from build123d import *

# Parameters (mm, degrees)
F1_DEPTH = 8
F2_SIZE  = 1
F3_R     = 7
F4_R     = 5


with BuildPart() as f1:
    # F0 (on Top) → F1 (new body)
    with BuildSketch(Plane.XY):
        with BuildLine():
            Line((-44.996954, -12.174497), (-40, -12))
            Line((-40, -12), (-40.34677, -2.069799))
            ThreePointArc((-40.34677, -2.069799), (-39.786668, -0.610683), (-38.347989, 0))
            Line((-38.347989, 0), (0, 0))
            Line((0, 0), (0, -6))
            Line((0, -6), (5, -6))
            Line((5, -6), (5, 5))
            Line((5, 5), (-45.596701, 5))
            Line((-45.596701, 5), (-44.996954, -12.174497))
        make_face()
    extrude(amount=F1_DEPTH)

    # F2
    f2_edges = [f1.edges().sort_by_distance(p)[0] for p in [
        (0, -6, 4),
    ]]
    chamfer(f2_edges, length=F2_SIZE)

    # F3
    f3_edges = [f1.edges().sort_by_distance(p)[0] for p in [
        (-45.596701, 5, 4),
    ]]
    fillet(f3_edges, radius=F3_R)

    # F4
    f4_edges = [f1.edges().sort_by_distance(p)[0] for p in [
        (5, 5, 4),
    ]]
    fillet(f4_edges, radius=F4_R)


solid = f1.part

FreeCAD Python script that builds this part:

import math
import FreeCAD as App
import Part
import Sketcher
from FreeCAD import Vector
Q = App.Units.Quantity


def edges_at(feature, points):
    """Names of the edges that pass closest to the given points."""
    edges = feature.Shape.Edges
    near = lambda p: min(range(len(edges)), key=lambda i: edges[i].distToShape(Part.Vertex(*p))[0])
    return sorted({f"Edge{near(p) + 1}" for p in points})

doc = App.newDocument("Part")
params = doc.addObject("Spreadsheet::Sheet", "Params")
for row, (alias, value) in enumerate([
    ("sketch1_radius", "2 mm"),
    ("sketch1_width", "5 mm"),
    ("sketch1_height", "6 mm"),
    ("sketch1_height2", "11 mm"),
    ("sketch1_length", "5 mm"),
    ("pad1_length", "8 mm"),
    ("chamfer_size", "1 mm"),
    ("fillet_radius", "7 mm"),
    ("fillet2_radius", "5 mm"),
], start=1):
    params.set(f"A{row}", alias)
    params.set(f"B{row}", "=" + value)
    params.setAlias(f"B{row}", alias)

body = doc.addObject("PartDesign::Body", "Body")

# Sketch on XY plane
sketch1 = body.newObject("Sketcher::SketchObject", "Sketch")
sketch1.AttachmentSupport = (doc.getObject("XY_Plane"), [""])
sketch1.MapMode = "FlatFace"
sketch1.addGeometry(Part.LineSegment(Vector(-44.996954, -12.174497, 0), Vector(-40, -12, 0)), False)
sketch1.addGeometry(Part.LineSegment(Vector(-40, -12, 0), Vector(-40.34677, -2.069799, 0)), False)
sketch1.addGeometry(Part.ArcOfCircle(Part.Circle(Vector(-38.347989, -2, 0), Vector(0, 0, 1), 2), math.radians(90.000004), math.radians(182.000015)), False)
sketch1.addGeometry(Part.LineSegment(Vector(-38.347989, 0, 0), Vector(0, 0, 0)), False)
sketch1.addGeometry(Part.LineSegment(Vector(0, 0, 0), Vector(0, -6, 0)), False)
sketch1.addGeometry(Part.LineSegment(Vector(0, -6, 0), Vector(5, -6, 0)), False)
sketch1.addGeometry(Part.LineSegment(Vector(5, -6, 0), Vector(5, 5, 0)), False)
sketch1.addGeometry(Part.LineSegment(Vector(5, 5, 0), Vector(-45.596701, 5, 0)), False)
sketch1.addGeometry(Part.LineSegment(Vector(-45.596701, 5, 0), Vector(-44.996954, -12.174497, 0)), False)
sketch1.addConstraint(Sketcher.Constraint("Coincident", 0, 2, 1, 1))
sketch1.addConstraint(Sketcher.Constraint("Tangent", 1, 2, 2, 2))
sketch1.addConstraint(Sketcher.Constraint("Tangent", 2, 1, 3, 1))
sketch1.addConstraint(Sketcher.Constraint("Coincident", 3, 2, 4, 1))
sketch1.addConstraint(Sketcher.Constraint("Coincident", 4, 2, 5, 1))
sketch1.addConstraint(Sketcher.Constraint("Coincident", 5, 2, 6, 1))
sketch1.addConstraint(Sketcher.Constraint("Coincident", 6, 2, 7, 1))
sketch1.addConstraint(Sketcher.Constraint("Coincident", 7, 2, 8, 1))
sketch1.addConstraint(Sketcher.Constraint("Coincident", 8, 2, 0, 1))
sketch1.addConstraint(Sketcher.Constraint("Horizontal", 3))
sketch1.addConstraint(Sketcher.Constraint("Vertical", 4))
sketch1.addConstraint(Sketcher.Constraint("Horizontal", 5))
sketch1.addConstraint(Sketcher.Constraint("Vertical", 6))
sketch1.addConstraint(Sketcher.Constraint("Horizontal", 7))
sketch1.addConstraint(Sketcher.Constraint("Coincident", 3, 2, -1, 1))
sketch1.addConstraint(Sketcher.Constraint("Perpendicular", 0, 1))
sketch1.addConstraint(Sketcher.Constraint("Parallel", 1, 8))
sketch1.addConstraint(Sketcher.Constraint("Radius", 2, Q("2 mm")))
sketch1.addConstraint(Sketcher.Constraint("DistanceX", 5, 1, 5, 2, Q("5 mm")))
sketch1.addConstraint(Sketcher.Constraint("DistanceY", 4, 2, 4, 1, Q("6 mm")))
sketch1.addConstraint(Sketcher.Constraint("DistanceY", 6, 1, 6, 2, Q("11 mm")))
sketch1.addConstraint(Sketcher.Constraint("Angle", 0, Q("1.999995 deg")))
sketch1.addConstraint(Sketcher.Constraint("Distance", 0, Q("5 mm")))
sketch1.addConstraint(Sketcher.Constraint("DistanceX", 0, 2, -1, 1, Q("40 mm")))
sketch1.addConstraint(Sketcher.Constraint("DistanceY", 0, 2, -1, 1, Q("12 mm")))
sketch1.setExpression("Constraints[17]", "Params.sketch1_radius")
sketch1.setExpression("Constraints[18]", "Params.sketch1_width")
sketch1.setExpression("Constraints[19]", "Params.sketch1_height")
sketch1.setExpression("Constraints[20]", "Params.sketch1_height2")
sketch1.setExpression("Constraints[22]", "Params.sketch1_length")
pad1 = body.newObject("PartDesign::Pad", "Pad")
pad1.Profile = sketch1
pad1.setExpression("Length", "Params.pad1_length")
doc.recompute()

chamfer = body.newObject("PartDesign::Chamfer", "Chamfer")
chamfer.Base = (pad1, edges_at(pad1, [(0, -6, 4)]))
chamfer.setExpression("Size", "Params.chamfer_size")
doc.recompute()

fillet = body.newObject("PartDesign::Fillet", "Fillet")
fillet.Base = (chamfer, edges_at(chamfer, [(-45.597, 5, 4)]))
fillet.setExpression("Radius", "Params.fillet_radius")
doc.recompute()

fillet2 = body.newObject("PartDesign::Fillet", "Fillet001")
fillet2.Base = (fillet, edges_at(fillet, [(5, 5, 4)]))
fillet2.setExpression("Radius", "Params.fillet2_radius")

doc.recompute()
